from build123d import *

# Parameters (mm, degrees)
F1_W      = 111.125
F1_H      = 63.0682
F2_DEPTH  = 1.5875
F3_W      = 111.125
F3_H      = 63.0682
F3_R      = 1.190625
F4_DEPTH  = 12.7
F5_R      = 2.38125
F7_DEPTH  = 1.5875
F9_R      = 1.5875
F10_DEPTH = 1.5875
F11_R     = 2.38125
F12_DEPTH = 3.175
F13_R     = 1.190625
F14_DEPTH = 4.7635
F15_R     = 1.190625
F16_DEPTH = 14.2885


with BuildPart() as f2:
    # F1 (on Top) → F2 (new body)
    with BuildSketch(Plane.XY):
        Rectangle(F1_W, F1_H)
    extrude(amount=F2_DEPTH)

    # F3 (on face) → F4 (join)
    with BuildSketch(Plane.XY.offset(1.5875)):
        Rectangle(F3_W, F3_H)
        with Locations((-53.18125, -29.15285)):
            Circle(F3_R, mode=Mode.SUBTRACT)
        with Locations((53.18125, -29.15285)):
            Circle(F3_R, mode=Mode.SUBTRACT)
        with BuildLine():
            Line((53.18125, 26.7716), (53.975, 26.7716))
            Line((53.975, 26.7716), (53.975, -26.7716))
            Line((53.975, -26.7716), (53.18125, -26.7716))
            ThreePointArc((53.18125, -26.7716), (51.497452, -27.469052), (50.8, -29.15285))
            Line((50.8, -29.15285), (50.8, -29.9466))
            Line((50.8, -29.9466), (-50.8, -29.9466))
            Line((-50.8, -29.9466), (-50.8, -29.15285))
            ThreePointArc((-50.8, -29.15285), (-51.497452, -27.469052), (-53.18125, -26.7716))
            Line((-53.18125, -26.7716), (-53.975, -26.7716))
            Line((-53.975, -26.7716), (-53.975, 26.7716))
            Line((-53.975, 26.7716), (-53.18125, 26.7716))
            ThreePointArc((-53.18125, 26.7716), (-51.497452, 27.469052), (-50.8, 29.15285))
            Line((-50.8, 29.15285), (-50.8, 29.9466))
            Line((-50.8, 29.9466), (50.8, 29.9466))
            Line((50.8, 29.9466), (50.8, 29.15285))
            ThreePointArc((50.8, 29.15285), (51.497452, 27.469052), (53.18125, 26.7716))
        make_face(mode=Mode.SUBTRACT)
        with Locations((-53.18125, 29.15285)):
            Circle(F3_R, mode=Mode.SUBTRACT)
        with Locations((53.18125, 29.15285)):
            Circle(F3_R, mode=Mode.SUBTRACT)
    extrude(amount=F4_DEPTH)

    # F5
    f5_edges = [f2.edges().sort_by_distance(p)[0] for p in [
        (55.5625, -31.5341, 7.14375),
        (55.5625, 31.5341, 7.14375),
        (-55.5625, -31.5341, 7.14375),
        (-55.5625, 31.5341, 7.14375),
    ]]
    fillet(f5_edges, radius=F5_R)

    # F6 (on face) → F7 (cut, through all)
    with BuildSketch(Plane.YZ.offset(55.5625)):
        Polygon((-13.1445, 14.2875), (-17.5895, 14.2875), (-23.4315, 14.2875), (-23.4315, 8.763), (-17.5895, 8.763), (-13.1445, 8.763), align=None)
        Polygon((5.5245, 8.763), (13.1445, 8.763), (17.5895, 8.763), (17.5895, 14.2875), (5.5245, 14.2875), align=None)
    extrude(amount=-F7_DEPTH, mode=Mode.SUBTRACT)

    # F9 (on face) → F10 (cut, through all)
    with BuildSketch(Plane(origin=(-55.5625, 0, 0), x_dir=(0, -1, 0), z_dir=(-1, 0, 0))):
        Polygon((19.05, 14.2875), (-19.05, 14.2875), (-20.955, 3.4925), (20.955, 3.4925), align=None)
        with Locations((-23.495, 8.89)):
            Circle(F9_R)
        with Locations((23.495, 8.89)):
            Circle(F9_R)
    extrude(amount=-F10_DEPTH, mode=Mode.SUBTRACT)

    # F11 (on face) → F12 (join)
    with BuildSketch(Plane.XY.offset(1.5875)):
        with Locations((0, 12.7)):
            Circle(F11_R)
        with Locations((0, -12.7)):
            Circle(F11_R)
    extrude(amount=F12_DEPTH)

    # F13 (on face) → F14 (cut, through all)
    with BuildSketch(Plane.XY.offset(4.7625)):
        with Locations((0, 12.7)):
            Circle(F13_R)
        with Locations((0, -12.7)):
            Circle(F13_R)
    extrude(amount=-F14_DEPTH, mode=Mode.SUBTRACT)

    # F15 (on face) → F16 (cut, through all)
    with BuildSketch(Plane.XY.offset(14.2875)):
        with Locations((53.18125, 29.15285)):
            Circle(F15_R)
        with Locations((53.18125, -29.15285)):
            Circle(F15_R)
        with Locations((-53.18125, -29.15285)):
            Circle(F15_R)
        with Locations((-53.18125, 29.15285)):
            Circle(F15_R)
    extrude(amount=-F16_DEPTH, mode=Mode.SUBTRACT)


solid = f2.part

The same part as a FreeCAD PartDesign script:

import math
import FreeCAD as App
import Part
import Sketcher
from FreeCAD import Vector
Q = App.Units.Quantity


def edges_at(feature, points):
    """Names of the edges that pass closest to the given points."""
    edges = feature.Shape.Edges
    near = lambda p: min(range(len(edges)), key=lambda i: edges[i].distToShape(Part.Vertex(*p))[0])
    return sorted({f"Edge{near(p) + 1}" for p in points})


def add_polygon(sketch, points):
    """Adds a closed chain of lines whose ends are joined by coincident constraints."""
    first, n = sketch.GeometryCount, len(points)
    for a, b in zip(points, points[1:] + points[:1]):
        sketch.addGeometry(Part.LineSegment(App.Vector(*a, 0), App.Vector(*b, 0)), False)
    for i in range(n):
        sketch.addConstraint(Sketcher.Constraint("Coincident", first + i, 2, first + (i + 1) % n, 1))

doc = App.newDocument("Part")
body = doc.addObject("PartDesign::Body", "Body")

sketch1 = body.newObject("Sketcher::SketchObject", "Sketch")
sketch1.AttachmentSupport = (doc.getObject("XY_Plane"), [""])
sketch1.MapMode = "FlatFace"
add_polygon(sketch1, [(-56, 32), (-56, -32), (56, -32), (56, 32)])
sketch1.addConstraint([
    Sketcher.Constraint("Vertical", 0),
    Sketcher.Constraint("Horizontal", 1),
    Sketcher.Constraint("Vertical", 2),
    Sketcher.Constraint("Horizontal", 3),
    Sketcher.Constraint("Symmetric", 0, 2, 2, 2, -1, 1),
    Sketcher.Constraint("DistanceX", 1, 1, 1, 2, Q("4.375 in")),
    Sketcher.Constraint("DistanceY", 0, 2, 0, 1, Q("2.483 in")),
])
pad1 = body.newObject("PartDesign::Pad", "Pad")
pad1.Profile = sketch1
pad1.Length = Q("0.0625 in")

sketch2 = body.newObject("Sketcher::SketchObject", "Sketch001")
sketch2.AttachmentSupport = (doc.getObject("XY_Plane"), [""])
sketch2.MapMode = "FlatFace"
sketch2.AttachmentOffset = App.Placement(Vector(0, 0, 0.0625 * 25.4), App.Rotation())
add_polygon(sketch2, [(-55.6, 31.5), (-55.6, -31.5), (55.6, -31.5), (55.6, 31.5)])
sketch2.addGeometry(Part.Circle(Vector(-53.2, -29.2, 0), Vector(0, 0, 1), 1.2), False)
sketch2.addGeometry(Part.Circle(Vector(53.2, -29.2, 0), Vector(0, 0, 1), 1.2), False)
sketch2.addGeometry(Part.Circle(Vector(-53.2, 29.2, 0), Vector(0, 0, 1), 1.2), False)
sketch2.addGeometry(Part.ArcOfCircle(Part.Circle(Vector(53.2, 29.2, 0), Vector(0, 0, 1), 2.4), math.radians(-180), math.radians(-90)), False)
sketch2.addGeometry(Part.LineSegment(Vector(53.2, 26.8, 0), Vector(54, 26.8, 0)), False)
sketch2.addGeometry(Part.LineSegment(Vector(54, 26.8, 0), Vector(54, -26.8, 0)), False)
sketch2.addGeometry(Part.LineSegment(Vector(54, -26.8, 0), Vector(53.2, -26.8, 0)), False)
sketch2.addGeometry(Part.ArcOfCircle(Part.Circle(Vector(53.2, -29.2, 0), Vector(0, 0, 1), 2.4), math.radians(90), math.radians(180)), False)
sketch2.addGeometry(Part.LineSegment(Vector(50.8, -29.2, 0), Vector(50.8, -29.9, 0)), False)
sketch2.addGeometry(Part.LineSegment(Vector(50.8, -29.9, 0), Vector(-50.8, -29.9, 0)), False)
sketch2.addGeometry(Part.LineSegment(Vector(-50.8, -29.9, 0), Vector(-50.8, -29.2, 0)), False)
sketch2.addGeometry(Part.ArcOfCircle(Part.Circle(Vector(-53.2, -29.2, 0), Vector(0, 0, 1), 2.4), math.radians(0), math.radians(90)), False)
sketch2.addGeometry(Part.LineSegment(Vector(-53.2, -26.8, 0), Vector(-54, -26.8, 0)), False)
sketch2.addGeometry(Part.LineSegment(Vector(-54, -26.8, 0), Vector(-54, 26.8, 0)), False)
sketch2.addGeometry(Part.LineSegment(Vector(-54, 26.8, 0), Vector(-53.2, 26.8, 0)), False)
sketch2.addGeometry(Part.ArcOfCircle(Part.Circle(Vector(-53.2, 29.2, 0), Vector(0, 0, 1), 2.4), math.radians(-90), math.radians(0)), False)
sketch2.addGeometry(Part.LineSegment(Vector(-50.8, 29.2, 0), Vector(-50.8, 29.9, 0)), False)
sketch2.addGeometry(Part.LineSegment(Vector(-50.8, 29.9, 0), Vector(50.8, 29.9, 0)), False)
sketch2.addGeometry(Part.LineSegment(Vector(50.8, 29.9, 0), Vector(50.8, 29.2, 0)), False)
sketch2.addGeometry(Part.Circle(Vector(53.2, 29.2, 0), Vector(0, 0, 1), 1.2), False)
sketch2.addConstraint([
    Sketcher.Constraint("Tangent", 7, 2, 8, 1),
    Sketcher.Constraint("Coincident", 8, 2, 9, 1),
    Sketcher.Constraint("Coincident", 9, 2, 10, 1),
    Sketcher.Constraint("Tangent", 10, 2, 11, 1),
    Sketcher.Constraint("Tangent", 11, 2, 12, 1),
    Sketcher.Constraint("Coincident", 12, 2, 13, 1),
    Sketcher.Constraint("Coincident", 13, 2, 14, 1),
    Sketcher.Constraint("Tangent", 14, 2, 15, 1),
    Sketcher.Constraint("Tangent", 15, 2, 16, 1),
    Sketcher.Constraint("Coincident", 16, 2, 17, 1),
    Sketcher.Constraint("Coincident", 17, 2, 18, 1),
    Sketcher.Constraint("Tangent", 18, 2, 19, 1),
    Sketcher.Constraint("Tangent", 19, 2, 20, 1),
    Sketcher.Constraint("Coincident", 20, 2, 21, 1),
    Sketcher.Constraint("Coincident", 21, 2, 22, 1),
    Sketcher.Constraint("Tangent", 22, 2, 7, 1),
    Sketcher.Constraint("Vertical", 0),
    Sketcher.Constraint("Horizontal", 1),
    Sketcher.Constraint("Vertical", 2),
    Sketcher.Constraint("Horizontal", 3),
    Sketcher.Constraint("Horizontal", 8),
    Sketcher.Constraint("Vertical", 9),
    Sketcher.Constraint("Horizontal", 10),
    Sketcher.Constraint("Vertical", 12),
    Sketcher.Constraint("Horizontal", 13),
    Sketcher.Constraint("Vertical", 14),
    Sketcher.Constraint("Horizontal", 16),
    Sketcher.Constraint("Vertical", 17),
    Sketcher.Constraint("Horizontal", 18),
    Sketcher.Constraint("Vertical", 20),
    Sketcher.Constraint("Horizontal", 21),
    Sketcher.Constraint("Vertical", 22),
    Sketcher.Constraint("Coincident", 11, 3, 5, 3),
    Sketcher.Constraint("Coincident", 15, 3, 4, 3),
    Sketcher.Constraint("Coincident", 19, 3, 6, 3),
    Sketcher.Constraint("Coincident", 23, 3, 7, 3),
    Sketcher.Constraint("Equal", 4, 5),
    Sketcher.Constraint("Equal", 5, 6),
    Sketcher.Constraint("Equal", 7, 11),
    Sketcher.Constraint("Equal", 11, 15),
    Sketcher.Constraint("Equal", 15, 19),
    Sketcher.Constraint("Equal", 6, 23),
    Sketcher.Constraint("Symmetric", 5, 3, 6, 3, -1, 1),
    Sketcher.Constraint("Symmetric", 4, 3, 7, 3, -1, 1),
    Sketcher.Constraint("Symmetric", 0, 2, 2, 2, -1, 1),
    Sketcher.Constraint("Symmetric", 4, 3, 5, 3, -2),
    Sketcher.Constraint("Equal", 10, 16),
    Sketcher.Constraint("Equal", 18, 12),
    Sketcher.Constraint("Equal", 14, 20),
    Sketcher.Constraint("DistanceX", 13, 2, 13, 1, Q("4 in")),
    Sketcher.Constraint("Diameter", 4, Q("0.09375 in")),
    Sketcher.Constraint("Radius", 7, Q("0.09375 in")),
    Sketcher.Constraint("DistanceX", 1, 1, 1, 2, Q("4.375 in")),
    Sketcher.Constraint("DistanceX", 8, 1, 8, 2, Q("0.03125 in")),
    Sketcher.Constraint("DistanceY", 0, 2, 0, 1, Q("2.483 in")),
    Sketcher.Constraint("DistanceY", 9, 2, 9, 1, Q("2.108 in")),
])
pad2 = body.newObject("PartDesign::Pad", "Pad001")
pad2.Profile = sketch2
pad2.Length = Q("0.5 in")
doc.recompute()

fillet = body.newObject("PartDesign::Fillet", "Fillet")
fillet.Base = (pad2, edges_at(pad2, [
    (55.562, -31.534, 7.144),
    (55.562, 31.534, 7.144),
    (-55.562, -31.534, 7.144),
    (-55.562, 31.534, 7.144),
]))
fillet.Radius = Q("0.09375 in")

sketch3 = body.newObject("Sketcher::SketchObject", "Sketch002")
sketch3.AttachmentSupport = (doc.getObject("YZ_Plane"), [""])
sketch3.MapMode = "FlatFace"
sketch3.AttachmentOffset = App.Placement(Vector(0, 0, 2.1875 * 25.4), App.Rotation())
add_polygon(sketch3, [(-13, 14), (-23, 14), (-23, 9), (-13, 9)])
add_polygon(sketch3, [(6, 9), (18, 9), (18, 14), (6, 14)])
sketch3.addConstraint([
    Sketcher.Constraint("Horizontal", 0),
    Sketcher.Constraint("Vertical", 1),
    Sketcher.Constraint("Horizontal", 2),
    Sketcher.Constraint("Vertical", 3),
    Sketcher.Constraint("Horizontal", 4),
    Sketcher.Constraint("Vertical", 5),
    Sketcher.Constraint("Horizontal", 6),
    Sketcher.Constraint("Vertical", 7),
    Sketcher.Constraint("Horizontal", 2, 2, 4, 2),
    Sketcher.Constraint("Horizontal", 3, 2, 5, 2),
    Sketcher.Constraint("DistanceX", 0, 2, 0, 1, Q("0.405 in")),
    Sketcher.Constraint("DistanceX", 4, 1, 4, 2, Q("0.475 in")),
    Sketcher.Constraint("DistanceX", 2, 2, 4, 2, Q("1.21 in")),
    Sketcher.Constraint("DistanceY", 1, 2, 1, 1, Q("0.2175 in")),
    Sketcher.Constraint("DistanceY", -1, 1, 0, 2, Q("0.5625 in")),
    Sketcher.Constraint("DistanceX", 0, 2, -1, 1, Q("0.9225 in")),
])
pocket1 = body.newObject("PartDesign::Pocket", "Pocket")
pocket1.Profile = sketch3
pocket1.Length = Q("0.0625 in")

sketch4 = body.newObject("Sketcher::SketchObject", "Sketch003")
sketch4.AttachmentSupport = (doc.getObject("YZ_Plane"), [""])
sketch4.MapMode = "FlatFace"
sketch4.AttachmentOffset = App.Placement(Vector(0, 0, -2.1875 * 25.4), App.Rotation())
add_polygon(sketch4, [(-19.1, 14.3), (19.1, 14.3), (21, 3.5), (-21, 3.5)])
sketch4.addGeometry(Part.Circle(Vector(23.5, 8.9, 0), Vector(0, 0, 1), 1.6), False)
sketch4.addGeometry(Part.Circle(Vector(-23.5, 8.9, 0), Vector(0, 0, 1), 1.6), False)
sketch4.addConstraint([
    Sketcher.Constraint("Horizontal", 0),
    Sketcher.Constraint("Horizontal", 2),
    Sketcher.Constraint("Equal", 4, 5),
    Sketcher.Constraint("Symmetric", 4, 3, 5, 3, -2),
    Sketcher.Constraint("Equal", 1, 3),
    Sketcher.Constraint("Diameter", 4, Q("0.125 in")),
    Sketcher.Constraint("DistanceX", 0, 1, 0, 2, Q("1.5 in")),
    Sketcher.Constraint("DistanceX", 2, 2, 2, 1, Q("1.65 in")),
    Sketcher.Constraint("DistanceX", 1, 2, 4, 3, Q("0.1 in")),
    Sketcher.Constraint("DistanceX", 5, 3, 2, 2, Q("0.1 in")),
    Sketcher.Constraint("DistanceY", -1, 1, 4, 3, Q("0.35 in")),
    Sketcher.Constraint("DistanceY", -1, 1, 0, 2, Q("0.5625 in")),
    Sketcher.Constraint("DistanceY", 1, 2, 0, 2, Q("0.425 in")),
])
pocket2 = body.newObject("PartDesign::Pocket", "Pocket001")
pocket2.Profile = sketch4
pocket2.Length = Q("0.0625 in")
pocket2.Reversed = True

sketch5 = body.newObject("Sketcher::SketchObject", "Sketch004")
sketch5.AttachmentSupport = (doc.getObject("XY_Plane"), [""])
sketch5.MapMode = "FlatFace"
sketch5.AttachmentOffset = App.Placement(Vector(0, 0, 0.0625 * 25.4), App.Rotation())
sketch5.addGeometry([
    Part.Circle(Vector(0, 12.7, 0), Vector(0, 0, 1), 2.4),
    Part.Circle(Vector(0, -12.7, 0), Vector(0, 0, 1), 2.4),
], False)
sketch5.addConstraint([
    Sketcher.Constraint("Equal", 0, 1),
    Sketcher.Constraint("Symmetric", 0, 3, 1, 3, -1, 1),
    Sketcher.Constraint("PointOnObject", 0, 3, -2),
    Sketcher.Constraint("Diameter", 0, Q("0.1875 in")),
    Sketcher.Constraint("DistanceY", 1, 3, 0, 3, Q("1 in")),
])
pad3 = body.newObject("PartDesign::Pad", "Pad002")
pad3.Profile = sketch5
pad3.Length = Q("0.125 in")

sketch6 = body.newObject("Sketcher::SketchObject", "Sketch005")
sketch6.AttachmentSupport = (doc.getObject("XY_Plane"), [""])
sketch6.MapMode = "FlatFace"
sketch6.AttachmentOffset = App.Placement(Vector(0, 0, 0.1875 * 25.4), App.Rotation())
sketch6.addGeometry([
    Part.Circle(Vector(0, 12.7, 0), Vector(0, 0, 1), 1.2),
    Part.Circle(Vector(0, -12.7, 0), Vector(0, 0, 1), 1.2),
], False)
sketch6.addConstraint([
    Sketcher.Constraint("Equal", 0, 1),
    Sketcher.Constraint("Symmetric", 0, 3, 1, 3, -1, 1),
    Sketcher.Constraint("PointOnObject", 0, 3, -2),
    Sketcher.Constraint("Diameter", 0, Q("0.09375 in")),
    Sketcher.Constraint("DistanceY", 1, 3, 0, 3, Q("1 in")),
])
pocket3 = body.newObject("PartDesign::Pocket", "Pocket002")
pocket3.Profile = sketch6
pocket3.Type = "ThroughAll"

sketch7 = body.newObject("Sketcher::SketchObject", "Sketch006")
sketch7.AttachmentSupport = (doc.getObject("XY_Plane"), [""])
sketch7.MapMode = "FlatFace"
sketch7.AttachmentOffset = App.Placement(Vector(0, 0, 0.5625 * 25.4), App.Rotation())
sketch7.addGeometry([
    Part.Circle(Vector(53.2, 29.2, 0), Vector(0, 0, 1), 1.2),
    Part.Circle(Vector(53.2, -29.2, 0), Vector(0, 0, 1), 1.2),
    Part.Circle(Vector(-53.2, -29.2, 0), Vector(0, 0, 1), 1.2),
    Part.Circle(Vector(-53.2, 29.2, 0), Vector(0, 0, 1), 1.2),
], False)
sketch7.addConstraint([
    Sketcher.Constraint("Equal", 0, 1),
    Sketcher.Constraint("Equal", 1, 2),
    Sketcher.Constraint("Equal", 2, 3),
    Sketcher.Constraint("Symmetric", 0, 3, 2, 3, -1, 1),
    Sketcher.Constraint("Symmetric", 1, 3, 3, 3, -1, 1),
    Sketcher.Constraint("Symmetric", 1, 3, 2, 3, -2),
    Sketcher.Constraint("Diameter", 0, Q("0.09375 in")),
    Sketcher.Constraint("DistanceX", -1, 1, 0, 3, Q("2.09375 in")),
    Sketcher.Constraint("DistanceY", 1, 3, 0, 3, Q("2.2955 in")),
])
pocket4 = body.newObject("PartDesign::Pocket", "Pocket003")
pocket4.Profile = sketch7
pocket4.Type = "ThroughAll"

doc.recompute()
